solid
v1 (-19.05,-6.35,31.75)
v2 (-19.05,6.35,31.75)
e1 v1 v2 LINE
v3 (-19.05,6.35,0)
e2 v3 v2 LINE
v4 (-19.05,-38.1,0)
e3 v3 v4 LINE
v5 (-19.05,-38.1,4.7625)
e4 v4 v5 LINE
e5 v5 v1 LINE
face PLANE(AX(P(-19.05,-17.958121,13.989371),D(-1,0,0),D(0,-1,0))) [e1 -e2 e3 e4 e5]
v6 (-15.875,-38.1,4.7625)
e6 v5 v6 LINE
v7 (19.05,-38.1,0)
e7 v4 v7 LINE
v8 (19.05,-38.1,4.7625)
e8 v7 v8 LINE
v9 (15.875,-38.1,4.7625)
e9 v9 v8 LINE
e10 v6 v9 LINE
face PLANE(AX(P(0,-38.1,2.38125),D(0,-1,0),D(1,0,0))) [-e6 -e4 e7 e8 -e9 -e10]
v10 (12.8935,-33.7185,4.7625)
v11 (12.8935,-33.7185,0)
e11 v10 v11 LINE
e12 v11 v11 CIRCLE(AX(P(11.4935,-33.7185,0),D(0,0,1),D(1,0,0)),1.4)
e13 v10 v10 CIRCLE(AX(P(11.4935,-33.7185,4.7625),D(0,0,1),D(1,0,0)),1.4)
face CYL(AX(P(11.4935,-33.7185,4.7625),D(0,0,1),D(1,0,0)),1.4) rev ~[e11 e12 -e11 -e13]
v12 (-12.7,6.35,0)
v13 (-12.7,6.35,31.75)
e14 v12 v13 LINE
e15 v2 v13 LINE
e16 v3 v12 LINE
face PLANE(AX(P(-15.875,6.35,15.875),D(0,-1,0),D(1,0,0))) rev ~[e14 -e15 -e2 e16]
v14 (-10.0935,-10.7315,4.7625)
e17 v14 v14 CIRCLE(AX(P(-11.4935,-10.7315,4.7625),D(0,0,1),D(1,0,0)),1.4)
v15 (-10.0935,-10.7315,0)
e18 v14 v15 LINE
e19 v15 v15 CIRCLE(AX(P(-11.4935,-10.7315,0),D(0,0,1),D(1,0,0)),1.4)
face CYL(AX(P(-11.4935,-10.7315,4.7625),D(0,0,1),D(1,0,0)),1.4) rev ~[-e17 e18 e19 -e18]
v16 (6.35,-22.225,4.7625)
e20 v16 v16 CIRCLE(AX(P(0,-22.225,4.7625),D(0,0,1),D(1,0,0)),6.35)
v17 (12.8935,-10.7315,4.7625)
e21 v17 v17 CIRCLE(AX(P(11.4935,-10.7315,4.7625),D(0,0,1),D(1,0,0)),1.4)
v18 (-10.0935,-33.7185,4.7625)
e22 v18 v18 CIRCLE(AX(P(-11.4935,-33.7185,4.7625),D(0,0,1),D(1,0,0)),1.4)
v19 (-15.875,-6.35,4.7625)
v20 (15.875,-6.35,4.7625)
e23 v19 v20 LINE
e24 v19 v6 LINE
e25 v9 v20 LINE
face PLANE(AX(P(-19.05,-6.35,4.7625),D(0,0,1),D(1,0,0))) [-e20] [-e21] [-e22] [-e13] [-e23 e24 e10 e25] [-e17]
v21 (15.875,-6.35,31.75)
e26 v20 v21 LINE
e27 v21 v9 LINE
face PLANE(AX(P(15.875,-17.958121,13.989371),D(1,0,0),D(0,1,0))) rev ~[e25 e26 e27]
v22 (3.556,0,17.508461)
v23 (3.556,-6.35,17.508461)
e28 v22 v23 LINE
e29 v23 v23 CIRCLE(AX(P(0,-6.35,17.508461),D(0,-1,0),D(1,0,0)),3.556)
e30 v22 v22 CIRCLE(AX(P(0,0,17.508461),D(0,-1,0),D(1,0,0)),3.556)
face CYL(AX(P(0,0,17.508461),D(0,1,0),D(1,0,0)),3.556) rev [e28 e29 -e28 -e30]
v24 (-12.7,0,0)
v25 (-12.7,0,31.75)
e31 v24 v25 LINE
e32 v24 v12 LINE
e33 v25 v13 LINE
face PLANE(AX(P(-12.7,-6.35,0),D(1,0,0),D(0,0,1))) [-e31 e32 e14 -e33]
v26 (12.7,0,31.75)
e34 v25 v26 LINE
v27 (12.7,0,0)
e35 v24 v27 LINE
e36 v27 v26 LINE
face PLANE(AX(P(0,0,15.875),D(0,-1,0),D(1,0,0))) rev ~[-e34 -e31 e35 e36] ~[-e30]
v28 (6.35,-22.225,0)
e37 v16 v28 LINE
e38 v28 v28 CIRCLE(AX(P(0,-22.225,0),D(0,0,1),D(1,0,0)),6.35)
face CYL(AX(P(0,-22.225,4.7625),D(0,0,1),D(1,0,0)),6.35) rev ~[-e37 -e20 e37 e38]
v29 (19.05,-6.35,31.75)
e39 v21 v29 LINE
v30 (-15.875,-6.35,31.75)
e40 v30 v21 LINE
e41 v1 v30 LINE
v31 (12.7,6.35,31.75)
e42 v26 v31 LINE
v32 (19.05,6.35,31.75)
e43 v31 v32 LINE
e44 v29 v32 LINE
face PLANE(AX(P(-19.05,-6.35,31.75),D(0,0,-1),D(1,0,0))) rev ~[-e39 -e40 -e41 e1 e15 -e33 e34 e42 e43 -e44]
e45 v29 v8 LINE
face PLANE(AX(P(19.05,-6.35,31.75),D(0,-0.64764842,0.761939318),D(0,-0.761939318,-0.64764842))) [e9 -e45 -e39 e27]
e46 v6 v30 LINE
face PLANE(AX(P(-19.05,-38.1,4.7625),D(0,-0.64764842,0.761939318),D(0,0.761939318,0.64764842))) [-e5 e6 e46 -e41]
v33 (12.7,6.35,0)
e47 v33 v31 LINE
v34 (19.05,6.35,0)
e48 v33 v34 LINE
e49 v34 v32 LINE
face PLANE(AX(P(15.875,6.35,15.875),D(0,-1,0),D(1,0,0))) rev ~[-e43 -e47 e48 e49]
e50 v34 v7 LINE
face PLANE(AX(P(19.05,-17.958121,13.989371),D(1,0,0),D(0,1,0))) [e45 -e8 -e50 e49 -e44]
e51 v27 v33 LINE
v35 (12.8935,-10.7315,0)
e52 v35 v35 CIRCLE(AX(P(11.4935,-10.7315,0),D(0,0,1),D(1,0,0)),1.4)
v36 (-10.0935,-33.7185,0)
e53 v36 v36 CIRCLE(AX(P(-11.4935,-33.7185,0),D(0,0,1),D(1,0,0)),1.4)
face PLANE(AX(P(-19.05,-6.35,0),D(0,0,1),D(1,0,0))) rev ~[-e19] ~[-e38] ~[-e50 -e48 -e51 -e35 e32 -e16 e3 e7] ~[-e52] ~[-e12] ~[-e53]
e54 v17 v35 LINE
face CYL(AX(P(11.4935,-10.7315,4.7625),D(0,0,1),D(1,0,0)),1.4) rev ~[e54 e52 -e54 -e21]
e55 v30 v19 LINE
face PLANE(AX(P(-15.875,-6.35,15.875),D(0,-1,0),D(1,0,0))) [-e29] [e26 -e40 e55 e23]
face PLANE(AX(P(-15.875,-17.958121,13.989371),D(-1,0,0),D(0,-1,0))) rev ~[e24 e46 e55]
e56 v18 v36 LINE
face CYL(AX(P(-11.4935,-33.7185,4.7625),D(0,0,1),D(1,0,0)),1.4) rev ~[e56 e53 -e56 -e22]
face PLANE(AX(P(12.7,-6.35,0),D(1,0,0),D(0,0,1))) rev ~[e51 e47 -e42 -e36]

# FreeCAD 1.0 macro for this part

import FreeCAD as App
import Part
import Sketcher

V = App.Vector
Q = App.Units.Quantity


def add_polygon(sketch, points):
    """Adds a closed chain of lines whose ends are joined by coincident constraints."""
    first, n = sketch.GeometryCount, len(points)
    for a, b in zip(points, points[1:] + points[:1]):
        sketch.addGeometry(Part.LineSegment(App.Vector(*a, 0), App.Vector(*b, 0)), False)
    for i in range(n):
        sketch.addConstraint(Sketcher.Constraint("Coincident", first + i, 2, first + (i + 1) % n, 1))

doc = App.newDocument("Part")
params = doc.addObject("Spreadsheet::Sheet", "Params")
for row, (alias, value) in enumerate([
    ("sketch1_width", "1 in"),
    ("sketch1_height", "1.25 in"),
    ("pad1_length", "0.25 in"),
    ("sketch2_width", "0.25 in"),
    ("sketch2_height", "1.25 in"),
    ("pad2_length", "0.5 in"),
    ("sketch3_width", "1.5 in"),
    ("sketch3_height", "0.1875 in"),
    ("pad3_length", "1.25 in"),
    ("sketch4_width", "1.25 in"),
    ("sketch4_height", "1.0625 in"),
    ("pad4_length", "0.125 in"),
    ("sketch5_width", "1.25 in"),
    ("sketch5_height", "1.0625 in"),
    ("pad5_length", "0.125 in"),
    ("sketch6_diameter", "0.28 in"),
    ("pocket1_length", "0.25 in"),
    ("sketch7_diameter", "0.5 in"),
], start=1):
    params.set(f"A{row}", alias)
    params.set(f"B{row}", "=" + value)
    params.setAlias(f"B{row}", alias)

body = doc.addObject("PartDesign::Body", "Body")

sketch1 = doc.addObject("Sketcher::SketchObject", "Sketch")
body.addObject(sketch1)
sketch1.AttachmentSupport = (doc.XZ_Plane, [""])
sketch1.MapMode = "FlatFace"
add_polygon(sketch1, [(-13, 32), (-13, 0), (13, 0), (13, 32)])
sketch1.addConstraint(Sketcher.Constraint("Vertical", 0))
sketch1.addConstraint(Sketcher.Constraint("Horizontal", 1))
sketch1.addConstraint(Sketcher.Constraint("Vertical", 2))
sketch1.addConstraint(Sketcher.Constraint("Horizontal", 3))
sketch1.addConstraint(Sketcher.Constraint("Symmetric", 0, 2, 1, 2, -1, 1))
sketch1.addConstraint(Sketcher.Constraint("DistanceX", 1, 1, 1, 2, Q("1 in")))
sketch1.addConstraint(Sketcher.Constraint("DistanceY", 0, 2, 0, 1, Q("1.25 in")))
sketch1.setExpression("Constraints[9]", "Params.sketch1_width")
sketch1.setExpression("Constraints[10]", "Params.sketch1_height")
pad1 = doc.addObject("PartDesign::Pad", "Pad")
body.addObject(pad1)
pad1.Profile = sketch1
pad1.setExpression("Length", "Params.pad1_length")

sketch2 = doc.addObject("Sketcher::SketchObject", "Sketch001")
body.addObject(sketch2)
sketch2.AttachmentSupport = (doc.XZ_Plane, [""])
sketch2.MapMode = "FlatFace"
sketch2.AttachmentOffset = App.Placement(V(0, 0, 0.25 * 25.4), App.Rotation())
add_polygon(sketch2, [(-19, 32), (-19, 0), (-13, 0), (-13, 32)])
add_polygon(sketch2, [(13, 32), (13, 0), (19, 0), (19, 32)])
sketch2.addConstraint(Sketcher.Constraint("Vertical", 0))
sketch2.addConstraint(Sketcher.Constraint("Horizontal", 1))
sketch2.addConstraint(Sketcher.Constraint("Vertical", 2))
sketch2.addConstraint(Sketcher.Constraint("Horizontal", 3))
sketch2.addConstraint(Sketcher.Constraint("Vertical", 4))
sketch2.addConstraint(Sketcher.Constraint("Horizontal", 5))
sketch2.addConstraint(Sketcher.Constraint("Vertical", 6))
sketch2.addConstraint(Sketcher.Constraint("Horizontal", 7))
sketch2.addConstraint(Sketcher.Constraint("Symmetric", 1, 2, 4, 2, -1, 1))
sketch2.addConstraint(Sketcher.Constraint("Symmetric", 0, 2, 5, 2, -2))
sketch2.addConstraint(Sketcher.Constraint("Horizontal", 3, 2, 6, 2))
sketch2.addConstraint(Sketcher.Constraint("DistanceX", 1, 2, 4, 2, Q("1 in")))
sketch2.addConstraint(Sketcher.Constraint("DistanceX", 1, 1, 1, 2, Q("0.25 in")))
sketch2.addConstraint(Sketcher.Constraint("DistanceY", 0, 2, 0, 1, Q("1.25 in")))
sketch2.setExpression("Constraints[20]", "Params.sketch2_width")
sketch2.setExpression("Constraints[21]", "Params.sketch2_height")
pad2 = doc.addObject("PartDesign::Pad", "Pad001")
body.addObject(pad2)
pad2.Profile = sketch2
pad2.setExpression("Length", "Params.pad2_length")
pad2.Reversed = True

sketch3 = doc.addObject("Sketcher::SketchObject", "Sketch002")
body.addObject(sketch3)
sketch3.AttachmentSupport = (doc.XZ_Plane, [""])
sketch3.MapMode = "FlatFace"
sketch3.AttachmentOffset = App.Placement(V(0, 0, 0.25 * 25.4), App.Rotation())
add_polygon(sketch3, [(-19.1, 4.8), (-19.1, 0), (19.1, 0), (19.1, 4.8)])
sketch3.addConstraint(Sketcher.Constraint("Vertical", 0))
sketch3.addConstraint(Sketcher.Constraint("Horizontal", 1))
sketch3.addConstraint(Sketcher.Constraint("Vertical", 2))
sketch3.addConstraint(Sketcher.Constraint("Horizontal", 3))
sketch3.addConstraint(Sketcher.Constraint("Symmetric", 0, 2, 1, 2, -1, 1))
sketch3.addConstraint(Sketcher.Constraint("DistanceX", 1, 1, 1, 2, Q("1.5 in")))
sketch3.addConstraint(Sketcher.Constraint("DistanceY", 0, 2, 0, 1, Q("0.1875 in")))
sketch3.setExpression("Constraints[9]", "Params.sketch3_width")
sketch3.setExpression("Constraints[10]", "Params.sketch3_height")
pad3 = doc.addObject("PartDesign::Pad", "Pad002")
body.addObject(pad3)
pad3.Profile = sketch3
pad3.setExpression("Length", "Params.pad3_length")

sketch4 = doc.addObject("Sketcher::SketchObject", "Sketch003")
body.addObject(sketch4)
sketch4.AttachmentSupport = (doc.YZ_Plane, [""])
sketch4.MapMode = "FlatFace"
sketch4.AttachmentOffset = App.Placement(V(0, 0, -0.75 * 25.4), App.Rotation())
add_polygon(sketch4, [(-38, 5), (-6, 32), (-6, 5)])
sketch4.addConstraint(Sketcher.Constraint("Vertical", 1))
sketch4.addConstraint(Sketcher.Constraint("Horizontal", 2))
sketch4.addConstraint(Sketcher.Constraint("DistanceX", 2, 2, 2, 1, Q("1.25 in")))
sketch4.addConstraint(Sketcher.Constraint("DistanceX", 2, 2, -1, 1, Q("1.5 in")))
sketch4.addConstraint(Sketcher.Constraint("DistanceY", 1, 2, 1, 1, Q("1.0625 in")))
sketch4.addConstraint(Sketcher.Constraint("DistanceY", -1, 1, 0, 2, Q("1.25 in")))
sketch4.setExpression("Constraints[5]", "Params.sketch4_width")
sketch4.setExpression("Constraints[7]", "Params.sketch4_height")
pad4 = doc.addObject("PartDesign::Pad", "Pad003")
body.addObject(pad4)
pad4.Profile = sketch4
pad4.setExpression("Length", "Params.pad4_length")

sketch5 = doc.addObject("Sketcher::SketchObject", "Sketch004")
body.addObject(sketch5)
sketch5.AttachmentSupport = (doc.YZ_Plane, [""])
sketch5.MapMode = "FlatFace"
sketch5.AttachmentOffset = App.Placement(V(0, 0, 0.75 * 25.4), App.Rotation())
add_polygon(sketch5, [(-6, 5), (-6, 32), (-38, 5)])
sketch5.addConstraint(Sketcher.Constraint("Vertical", 0))
sketch5.addConstraint(Sketcher.Constraint("Horizontal", 2))
sketch5.addConstraint(Sketcher.Constraint("DistanceX", 2, 1, 2, 2, Q("1.25 in")))
sketch5.addConstraint(Sketcher.Constraint("DistanceX", 1, 2, -1, 1, Q("1.5 in")))
sketch5.addConstraint(Sketcher.Constraint("DistanceY", 0, 1, 0, 2, Q("1.0625 in")))
sketch5.addConstraint(Sketcher.Constraint("DistanceY", -1, 1, 0, 2, Q("1.25 in")))
sketch5.setExpression("Constraints[5]", "Params.sketch5_width")
sketch5.setExpression("Constraints[7]", "Params.sketch5_height")
pad5 = doc.addObject("PartDesign::Pad", "Pad004")
body.addObject(pad5)
pad5.Profile = sketch5
pad5.setExpression("Length", "Params.pad5_length")
pad5.Reversed = True

sketch6 = doc.addObject("Sketcher::SketchObject", "Sketch005")
body.addObject(sketch6)
sketch6.AttachmentSupport = (doc.XZ_Plane, [""])
sketch6.MapMode = "FlatFace"
sketch6.addGeometry(Part.Circle(V(0, 17.5, 0), V(0, 0, 1), 3.6), False)
sketch6.addConstraint(Sketcher.Constraint("PointOnObject", 0, 3, -2))
sketch6.addConstraint(Sketcher.Constraint("Diameter", 0, Q("0.28 in")))
sketch6.addConstraint(Sketcher.Constraint("DistanceY", -1, 1, 0, 3, 17.508461))
sketch6.setExpression("Constraints[1]", "Params.sketch6_diameter")
pocket1 = doc.addObject("PartDesign::Pocket", "Pocket")
body.addObject(pocket1)
pocket1.Profile = sketch6
pocket1.setExpression("Length", "Params.pocket1_length")
pocket1.Reversed = True

sketch7 = doc.addObject("Sketcher::SketchObject", "Sketch006")
body.addObject(sketch7)
sketch7.AttachmentSupport = (doc.XY_Plane, [""])
sketch7.MapMode = "FlatFace"
sketch7.AttachmentOffset = App.Placement(V(0, 0, 0.1875 * 25.4), App.Rotation())
sketch7.addGeometry(Part.Circle(V(11.5, -33.7, 0), V(0, 0, 1), 1.4), False)
sketch7.addGeometry(Part.Circle(V(-11.5, -33.7, 0), V(0, 0, 1), 1.4), False)
sketch7.addGeometry(Part.Circle(V(11.5, -10.7, 0), V(0, 0, 1), 1.4), False)
sketch7.addGeometry(Part.Circle(V(-11.5, -10.7, 0), V(0, 0, 1), 1.4), False)
sketch7.addGeometry(Part.Circle(V(0, -22.2, 0), V(0, 0, 1), 6.3), False)
sketch7.addConstraint(Sketcher.Constraint("Equal", 0, 1))
sketch7.addConstraint(Sketcher.Constraint("Equal", 1, 2))
sketch7.addConstraint(Sketcher.Constraint("Equal", 2, 3))
sketch7.addConstraint(Sketcher.Constraint("Symmetric", 0, 3, 1, 3, -2))
sketch7.addConstraint(Sketcher.Constraint("Symmetric", 2, 3, 3, 3, -2))
sketch7.addConstraint(Sketcher.Constraint("PointOnObject", 4, 3, -2))
sketch7.addConstraint(Sketcher.Constraint("Vertical", 0, 3, 2, 3))
sketch7.addConstraint(Sketcher.Constraint("Diameter", 4, Q("0.5 in")))
sketch7.addConstraint(Sketcher.Constraint("Diameter", 0, 2.8))
sketch7.addConstraint(Sketcher.Constraint("DistanceY", 4, 3, -1, 1, Q("0.875 in")))
sketch7.addConstraint(Sketcher.Constraint("DistanceX", 1, 3, 0, 3, Q("0.905 in")))
sketch7.addConstraint(Sketcher.Constraint("DistanceY", 0, 3, 2, 3, Q("0.905 in")))
sketch7.addConstraint(Sketcher.Constraint("DistanceY", 0, 3, -1, 1, Q("1.3275 in")))
sketch7.setExpression("Constraints[7]", "Params.sketch7_diameter")
pocket2 = doc.addObject("PartDesign::Pocket", "Pocket001")
body.addObject(pocket2)
pocket2.Profile = sketch7
pocket2.Type = "ThroughAll"

doc.recompute()
